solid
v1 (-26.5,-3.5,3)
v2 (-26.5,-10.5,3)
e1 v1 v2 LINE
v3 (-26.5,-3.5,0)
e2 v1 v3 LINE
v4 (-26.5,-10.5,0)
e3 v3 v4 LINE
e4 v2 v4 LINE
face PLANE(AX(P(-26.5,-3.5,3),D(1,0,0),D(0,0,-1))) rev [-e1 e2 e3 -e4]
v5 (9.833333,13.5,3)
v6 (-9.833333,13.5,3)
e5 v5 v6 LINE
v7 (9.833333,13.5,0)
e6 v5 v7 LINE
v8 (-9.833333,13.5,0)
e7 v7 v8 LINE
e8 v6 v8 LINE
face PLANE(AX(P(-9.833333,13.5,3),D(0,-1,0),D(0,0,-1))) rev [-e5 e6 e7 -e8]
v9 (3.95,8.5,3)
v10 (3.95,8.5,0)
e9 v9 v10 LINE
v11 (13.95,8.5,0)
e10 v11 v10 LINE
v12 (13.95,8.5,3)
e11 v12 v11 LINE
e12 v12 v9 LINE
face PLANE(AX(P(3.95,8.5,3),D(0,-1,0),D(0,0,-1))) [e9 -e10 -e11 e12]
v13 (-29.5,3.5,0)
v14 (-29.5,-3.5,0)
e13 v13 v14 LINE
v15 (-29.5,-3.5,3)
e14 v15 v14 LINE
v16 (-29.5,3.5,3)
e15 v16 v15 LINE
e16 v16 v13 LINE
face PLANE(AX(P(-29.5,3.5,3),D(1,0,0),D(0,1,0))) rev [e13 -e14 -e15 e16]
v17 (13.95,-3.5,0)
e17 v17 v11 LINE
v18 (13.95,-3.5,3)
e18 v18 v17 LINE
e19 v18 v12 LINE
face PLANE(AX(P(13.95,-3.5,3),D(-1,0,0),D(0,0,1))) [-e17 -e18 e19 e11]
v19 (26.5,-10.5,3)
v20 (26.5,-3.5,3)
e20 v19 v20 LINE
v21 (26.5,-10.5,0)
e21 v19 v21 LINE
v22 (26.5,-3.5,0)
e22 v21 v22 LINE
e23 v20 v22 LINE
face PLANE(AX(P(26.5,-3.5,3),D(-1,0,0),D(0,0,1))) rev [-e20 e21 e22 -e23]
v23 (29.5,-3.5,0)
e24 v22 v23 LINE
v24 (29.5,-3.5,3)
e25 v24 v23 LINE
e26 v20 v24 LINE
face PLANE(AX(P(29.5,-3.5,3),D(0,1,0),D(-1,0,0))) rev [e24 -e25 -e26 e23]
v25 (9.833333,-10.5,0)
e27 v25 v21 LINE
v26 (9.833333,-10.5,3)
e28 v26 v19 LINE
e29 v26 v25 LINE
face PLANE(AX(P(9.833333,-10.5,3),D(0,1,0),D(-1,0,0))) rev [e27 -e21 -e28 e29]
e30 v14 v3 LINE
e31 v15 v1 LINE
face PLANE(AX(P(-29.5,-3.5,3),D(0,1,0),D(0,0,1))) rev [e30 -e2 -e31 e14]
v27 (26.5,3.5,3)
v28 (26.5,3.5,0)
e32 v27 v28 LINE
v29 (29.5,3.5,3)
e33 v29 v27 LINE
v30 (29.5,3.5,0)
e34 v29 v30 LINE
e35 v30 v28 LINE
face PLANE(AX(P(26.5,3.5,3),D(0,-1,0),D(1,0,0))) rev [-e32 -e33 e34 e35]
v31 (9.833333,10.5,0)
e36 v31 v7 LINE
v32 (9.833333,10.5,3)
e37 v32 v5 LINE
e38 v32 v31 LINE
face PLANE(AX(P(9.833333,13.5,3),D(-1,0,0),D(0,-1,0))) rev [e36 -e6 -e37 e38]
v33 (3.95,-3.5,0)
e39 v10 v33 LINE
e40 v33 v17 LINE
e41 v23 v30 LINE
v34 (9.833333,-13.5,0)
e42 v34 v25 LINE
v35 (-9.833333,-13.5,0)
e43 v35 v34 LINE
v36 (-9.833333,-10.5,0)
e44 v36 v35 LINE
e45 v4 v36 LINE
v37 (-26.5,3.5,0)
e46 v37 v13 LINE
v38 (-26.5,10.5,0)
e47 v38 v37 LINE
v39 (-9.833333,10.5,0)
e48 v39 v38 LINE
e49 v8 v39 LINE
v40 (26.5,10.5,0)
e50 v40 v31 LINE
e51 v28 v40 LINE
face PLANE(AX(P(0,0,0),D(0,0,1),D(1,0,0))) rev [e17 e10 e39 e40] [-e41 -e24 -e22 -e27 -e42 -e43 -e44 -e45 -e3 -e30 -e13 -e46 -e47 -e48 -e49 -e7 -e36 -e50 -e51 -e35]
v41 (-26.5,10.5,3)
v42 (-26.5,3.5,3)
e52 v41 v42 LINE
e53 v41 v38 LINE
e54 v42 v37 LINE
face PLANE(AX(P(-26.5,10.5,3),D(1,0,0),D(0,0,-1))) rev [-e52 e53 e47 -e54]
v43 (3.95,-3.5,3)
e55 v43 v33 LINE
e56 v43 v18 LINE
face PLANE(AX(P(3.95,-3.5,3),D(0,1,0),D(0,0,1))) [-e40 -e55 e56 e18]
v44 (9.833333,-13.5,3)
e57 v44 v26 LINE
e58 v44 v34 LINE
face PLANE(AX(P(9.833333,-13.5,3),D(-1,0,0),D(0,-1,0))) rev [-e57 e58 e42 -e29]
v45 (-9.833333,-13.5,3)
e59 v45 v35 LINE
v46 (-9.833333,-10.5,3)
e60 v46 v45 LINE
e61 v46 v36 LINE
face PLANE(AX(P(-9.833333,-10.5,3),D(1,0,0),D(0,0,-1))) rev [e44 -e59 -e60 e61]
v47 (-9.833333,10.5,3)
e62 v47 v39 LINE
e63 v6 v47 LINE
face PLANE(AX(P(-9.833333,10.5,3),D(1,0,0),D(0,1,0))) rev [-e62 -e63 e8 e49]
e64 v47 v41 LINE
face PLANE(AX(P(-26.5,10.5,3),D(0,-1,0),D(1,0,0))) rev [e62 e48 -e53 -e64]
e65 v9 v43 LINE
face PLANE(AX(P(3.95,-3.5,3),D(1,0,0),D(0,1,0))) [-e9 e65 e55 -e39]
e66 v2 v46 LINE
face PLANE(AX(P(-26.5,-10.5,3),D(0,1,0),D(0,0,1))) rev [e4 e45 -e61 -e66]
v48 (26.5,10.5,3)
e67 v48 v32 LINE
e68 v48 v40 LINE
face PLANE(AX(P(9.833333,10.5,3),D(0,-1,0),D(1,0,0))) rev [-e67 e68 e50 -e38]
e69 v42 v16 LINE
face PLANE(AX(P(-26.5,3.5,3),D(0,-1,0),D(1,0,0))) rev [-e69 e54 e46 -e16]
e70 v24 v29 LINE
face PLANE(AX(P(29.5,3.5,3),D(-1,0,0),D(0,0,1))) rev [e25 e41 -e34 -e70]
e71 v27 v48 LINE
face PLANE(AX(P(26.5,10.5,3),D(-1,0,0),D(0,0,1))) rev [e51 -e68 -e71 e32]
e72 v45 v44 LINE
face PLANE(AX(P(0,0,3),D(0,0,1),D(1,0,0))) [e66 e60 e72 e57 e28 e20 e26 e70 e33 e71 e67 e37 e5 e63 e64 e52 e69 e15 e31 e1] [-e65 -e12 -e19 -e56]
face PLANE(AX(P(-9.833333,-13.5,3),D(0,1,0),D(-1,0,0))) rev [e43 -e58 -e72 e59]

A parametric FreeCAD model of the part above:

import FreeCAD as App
import Part
import Sketcher

V = App.Vector


def add_polygon(sketch, points):
    """Adds a closed chain of lines whose ends are joined by coincident constraints."""
    first, n = sketch.GeometryCount, len(points)
    for a, b in zip(points, points[1:] + points[:1]):
        sketch.addGeometry(Part.LineSegment(App.Vector(*a, 0), App.Vector(*b, 0)), False)
    for i in range(n):
        sketch.addConstraint(Sketcher.Constraint("Coincident", first + i, 2, first + (i + 1) % n, 1))

doc = App.newDocument("Part")
body = doc.addObject("PartDesign::Body", "Body")

# Sketch on XY plane
sketch1 = doc.addObject("Sketcher::SketchObject", "Sketch")
body.addObject(sketch1)
sketch1.AttachmentSupport = (doc.XY_Plane, [""])
sketch1.MapMode = "FlatFace"
add_polygon(sketch1, [(-26.5, 10.5), (-26.5, 3.5), (-29.5, 3.5), (-29.5, -3.5), (-26.5, -3.5), (-26.5, -10.5), (-9.8, -10.5), (-9.8, -13.5), (9.8, -13.5), (9.8, -10.5), (26.5, -10.5), (26.5, -3.5), (29.5, -3.5), (29.5, 3.5), (26.5, 3.5), (26.5, 10.5), (9.8, 10.5), (9.8, 13.5), (-9.8, 13.5), (-9.8, 10.5)])  # lines 0-19
add_polygon(sketch1, [(13.9, -3.5), (4, -3.5), (4, 8.5), (13.9, 8.5)])  # lines 20-23
sketch1.addConstraint(Sketcher.Constraint("Vertical", 0))
sketch1.addConstraint(Sketcher.Constraint("Horizontal", 1))
sketch1.addConstraint(Sketcher.Constraint("Vertical", 2))
sketch1.addConstraint(Sketcher.Constraint("Horizontal", 3))
sketch1.addConstraint(Sketcher.Constraint("Vertical", 4))
sketch1.addConstraint(Sketcher.Constraint("Horizontal", 5))
sketch1.addConstraint(Sketcher.Constraint("Vertical", 6))
sketch1.addConstraint(Sketcher.Constraint("Horizontal", 7))
sketch1.addConstraint(Sketcher.Constraint("Vertical", 8))
sketch1.addConstraint(Sketcher.Constraint("Horizontal", 9))
sketch1.addConstraint(Sketcher.Constraint("Vertical", 10))
sketch1.addConstraint(Sketcher.Constraint("Horizontal", 11))
sketch1.addConstraint(Sketcher.Constraint("Vertical", 12))
sketch1.addConstraint(Sketcher.Constraint("Horizontal", 13))
sketch1.addConstraint(Sketcher.Constraint("Vertical", 14))
sketch1.addConstraint(Sketcher.Constraint("Horizontal", 15))
sketch1.addConstraint(Sketcher.Constraint("Vertical", 16))
sketch1.addConstraint(Sketcher.Constraint("Horizontal", 17))
sketch1.addConstraint(Sketcher.Constraint("Vertical", 18))
sketch1.addConstraint(Sketcher.Constraint("Horizontal", 19))
sketch1.addConstraint(Sketcher.Constraint("Horizontal", 20))
sketch1.addConstraint(Sketcher.Constraint("Vertical", 21))
sketch1.addConstraint(Sketcher.Constraint("Horizontal", 22))
sketch1.addConstraint(Sketcher.Constraint("Vertical", 23))
sketch1.addConstraint(Sketcher.Constraint("Symmetric", 0, 2, 10, 2, -1, 1))
sketch1.addConstraint(Sketcher.Constraint("Symmetric", 2, 2, 12, 2, -1, 1))
sketch1.addConstraint(Sketcher.Constraint("Symmetric", 4, 2, 14, 2, -1, 1))
sketch1.addConstraint(Sketcher.Constraint("Symmetric", 6, 2, 16, 2, -1, 1))
sketch1.addConstraint(Sketcher.Constraint("Symmetric", 8, 2, 18, 2, -1, 1))
sketch1.addConstraint(Sketcher.Constraint("Symmetric", 5, 2, 8, 2, -2))
sketch1.addConstraint(Sketcher.Constraint("Symmetric", 3, 2, 10, 2, -2))
sketch1.addConstraint(Sketcher.Constraint("Horizontal", 11, 2, 20, 2))
sketch1.addConstraint(Sketcher.Constraint("Equal", 0, 2))
sketch1.addConstraint(Sketcher.Constraint("Equal", 13, 6))
sketch1.addConstraint(Sketcher.Constraint("DistanceX", 1, 2, 1, 1, 3.0))
sketch1.addConstraint(Sketcher.Constraint("DistanceX", 20, 2, 20, 1, 10.0))
sketch1.addConstraint(Sketcher.Constraint("DistanceY", 0, 2, 0, 1, 7.0))
sketch1.addConstraint(Sketcher.Constraint("DistanceY", 21, 1, 21, 2, 12.0))
sketch1.addConstraint(Sketcher.Constraint("DistanceX", 4, 2, 9, 2, 53.0))
sketch1.addConstraint(Sketcher.Constraint("DistanceX", -1, 1, 20, 2, 3.95))
sketch1.addConstraint(Sketcher.Constraint("DistanceX", 5, 1, 5, 2, 16.666667))
pad1 = doc.addObject("PartDesign::Pad", "Pad")
body.addObject(pad1)
pad1.Profile = sketch1
pad1.Length = 3

doc.recompute()
